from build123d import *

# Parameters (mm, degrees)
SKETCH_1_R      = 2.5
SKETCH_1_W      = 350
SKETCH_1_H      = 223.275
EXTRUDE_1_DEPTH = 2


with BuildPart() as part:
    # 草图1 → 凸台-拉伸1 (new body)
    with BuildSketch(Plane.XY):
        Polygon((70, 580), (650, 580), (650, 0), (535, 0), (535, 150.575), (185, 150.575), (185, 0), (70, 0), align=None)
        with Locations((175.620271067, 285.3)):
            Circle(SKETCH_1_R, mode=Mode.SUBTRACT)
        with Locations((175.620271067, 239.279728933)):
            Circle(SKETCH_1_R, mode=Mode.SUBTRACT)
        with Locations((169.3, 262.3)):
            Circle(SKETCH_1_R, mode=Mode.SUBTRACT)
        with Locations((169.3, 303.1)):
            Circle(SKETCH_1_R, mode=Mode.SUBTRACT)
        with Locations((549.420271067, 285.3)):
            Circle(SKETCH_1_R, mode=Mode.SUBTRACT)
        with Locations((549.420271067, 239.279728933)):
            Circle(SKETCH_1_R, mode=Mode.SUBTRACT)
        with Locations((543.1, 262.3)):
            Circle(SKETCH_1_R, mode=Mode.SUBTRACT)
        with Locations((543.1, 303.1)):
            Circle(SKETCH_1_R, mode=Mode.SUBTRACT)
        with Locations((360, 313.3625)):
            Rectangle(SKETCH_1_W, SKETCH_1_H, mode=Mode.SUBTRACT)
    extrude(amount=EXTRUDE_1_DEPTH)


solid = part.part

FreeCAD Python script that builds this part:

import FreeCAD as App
import Part
import Sketcher


def add_polygon(sketch, points):
    """Adds a closed chain of lines whose ends are joined by coincident constraints."""
    first, n = sketch.GeometryCount, len(points)
    for a, b in zip(points, points[1:] + points[:1]):
        sketch.addGeometry(Part.LineSegment(App.Vector(*a, 0), App.Vector(*b, 0)), False)
    for i in range(n):
        sketch.addConstraint(Sketcher.Constraint("Coincident", first + i, 2, first + (i + 1) % n, 1))

doc = App.newDocument("Part")
body = doc.addObject("PartDesign::Body", "Body")

sketch1 = doc.addObject("Sketcher::SketchObject", "Sketch")
body.addObject(sketch1)
sketch1.AttachmentSupport = (doc.XY_Plane, [""])
sketch1.MapMode = "FlatFace"
add_polygon(sketch1, [(650, 580), (70, 580), (70, 0), (185, 0), (185, 150.575), (535, 150.575), (535, 0), (650, 0)])
sketch1.addGeometry(Part.Circle(App.Vector(549.420271, 239.279729, 0), App.Vector(0, 0, 1), 2.5), False)
sketch1.addGeometry(Part.Circle(App.Vector(543.1, 262.3, 0), App.Vector(0, 0, 1), 2.5), False)
sketch1.addGeometry(Part.Circle(App.Vector(549.420271, 285.3, 0), App.Vector(0, 0, 1), 2.5), False)
sketch1.addGeometry(Part.Circle(App.Vector(543.1, 303.1, 0), App.Vector(0, 0, 1), 2.5), False)
sketch1.addGeometry(Part.Circle(App.Vector(175.620271, 239.279729, 0), App.Vector(0, 0, 1), 2.5), False)
sketch1.addGeometry(Part.Circle(App.Vector(169.3, 262.3, 0), App.Vector(0, 0, 1), 2.5), False)
sketch1.addGeometry(Part.Circle(App.Vector(175.620271, 285.3, 0), App.Vector(0, 0, 1), 2.5), False)
sketch1.addGeometry(Part.Circle(App.Vector(169.3, 303.1, 0), App.Vector(0, 0, 1), 2.5), False)
add_polygon(sketch1, [(185, 201.725), (185, 425), (535, 425), (535, 201.725)])
sketch1.addConstraint(Sketcher.Constraint("Horizontal", 0))
sketch1.addConstraint(Sketcher.Constraint("Vertical", 1))
sketch1.addConstraint(Sketcher.Constraint("Horizontal", 2))
sketch1.addConstraint(Sketcher.Constraint("Vertical", 3))
sketch1.addConstraint(Sketcher.Constraint("Horizontal", 4))
sketch1.addConstraint(Sketcher.Constraint("Vertical", 5))
sketch1.addConstraint(Sketcher.Constraint("Horizontal", 6))
sketch1.addConstraint(Sketcher.Constraint("Vertical", 7))
sketch1.addConstraint(Sketcher.Constraint("Vertical", 16))
sketch1.addConstraint(Sketcher.Constraint("Horizontal", 17))
sketch1.addConstraint(Sketcher.Constraint("Vertical", 18))
sketch1.addConstraint(Sketcher.Constraint("Horizontal", 19))
sketch1.addConstraint(Sketcher.Constraint("Equal", 8, 9))
sketch1.addConstraint(Sketcher.Constraint("Equal", 9, 10))
sketch1.addConstraint(Sketcher.Constraint("Equal", 10, 11))
sketch1.addConstraint(Sketcher.Constraint("Equal", 11, 12))
sketch1.addConstraint(Sketcher.Constraint("Equal", 12, 13))
sketch1.addConstraint(Sketcher.Constraint("Equal", 13, 14))
sketch1.addConstraint(Sketcher.Constraint("Equal", 14, 15))
sketch1.addConstraint(Sketcher.Constraint("PointOnObject", 1, 2, -1))
sketch1.addConstraint(Sketcher.Constraint("PointOnObject", 5, 2, -1))
sketch1.addConstraint(Sketcher.Constraint("Horizontal", 8, 3, 12, 3))
sketch1.addConstraint(Sketcher.Constraint("Horizontal", 9, 3, 13, 3))
sketch1.addConstraint(Sketcher.Constraint("Horizontal", 10, 3, 14, 3))
sketch1.addConstraint(Sketcher.Constraint("Horizontal", 11, 3, 15, 3))
sketch1.addConstraint(Sketcher.Constraint("Vertical", 8, 3, 10, 3))
sketch1.addConstraint(Sketcher.Constraint("Vertical", 9, 3, 11, 3))
sketch1.addConstraint(Sketcher.Constraint("Vertical", 12, 3, 14, 3))
sketch1.addConstraint(Sketcher.Constraint("Vertical", 13, 3, 15, 3))
sketch1.addConstraint(Sketcher.Constraint("Vertical", 3, 2, 16, 2))
sketch1.addConstraint(Sketcher.Constraint("Vertical", 5, 2, 17, 2))
sketch1.addConstraint(Sketcher.Constraint("Equal", 2, 6))
sketch1.addConstraint(Sketcher.Constraint("Equal", 0, 1))
sketch1.addConstraint(Sketcher.Constraint("Diameter", 8, 5.0))
sketch1.addConstraint(Sketcher.Constraint("DistanceX", 0, 2, 0, 1, 580.0))
sketch1.addConstraint(Sketcher.Constraint("DistanceX", 2, 1, 2, 2, 115.0))
sketch1.addConstraint(Sketcher.Constraint("DistanceX", -1, 1, 0, 2, 70.0))
sketch1.addConstraint(Sketcher.Constraint("DistanceY", -1, 1, 16, 2, 425.0))
sketch1.addConstraint(Sketcher.Constraint("DistanceY", 9, 3, 10, 3, 23.0))
sketch1.addConstraint(Sketcher.Constraint("DistanceX", -1, 1, 9, 3, 543.1))
sketch1.addConstraint(Sketcher.Constraint("DistanceY", -1, 1, 9, 3, 262.3))
sketch1.addConstraint(Sketcher.Constraint("DistanceY", -1, 1, 11, 3, 303.1))
sketch1.addConstraint(Sketcher.Constraint("DistanceX", -1, 1, 13, 3, 169.3))
sketch1.addConstraint(Sketcher.Constraint("DistanceX", 12, 3, 8, 3, 373.8))
sketch1.addConstraint(Sketcher.Constraint("DistanceY", 3, 1, 3, 2, 150.575))
sketch1.addConstraint(Sketcher.Constraint("DistanceY", 16, 1, 16, 2, 223.275))
sketch1.addConstraint(Sketcher.Constraint("DistanceX", -1, 1, 8, 3, 549.420271))
sketch1.addConstraint(Sketcher.Constraint("DistanceY", -1, 1, 8, 3, 239.279729))
pad1 = doc.addObject("PartDesign::Pad", "Pad")
body.addObject(pad1)
pad1.Profile = sketch1
pad1.Length = 2

doc.recompute()
